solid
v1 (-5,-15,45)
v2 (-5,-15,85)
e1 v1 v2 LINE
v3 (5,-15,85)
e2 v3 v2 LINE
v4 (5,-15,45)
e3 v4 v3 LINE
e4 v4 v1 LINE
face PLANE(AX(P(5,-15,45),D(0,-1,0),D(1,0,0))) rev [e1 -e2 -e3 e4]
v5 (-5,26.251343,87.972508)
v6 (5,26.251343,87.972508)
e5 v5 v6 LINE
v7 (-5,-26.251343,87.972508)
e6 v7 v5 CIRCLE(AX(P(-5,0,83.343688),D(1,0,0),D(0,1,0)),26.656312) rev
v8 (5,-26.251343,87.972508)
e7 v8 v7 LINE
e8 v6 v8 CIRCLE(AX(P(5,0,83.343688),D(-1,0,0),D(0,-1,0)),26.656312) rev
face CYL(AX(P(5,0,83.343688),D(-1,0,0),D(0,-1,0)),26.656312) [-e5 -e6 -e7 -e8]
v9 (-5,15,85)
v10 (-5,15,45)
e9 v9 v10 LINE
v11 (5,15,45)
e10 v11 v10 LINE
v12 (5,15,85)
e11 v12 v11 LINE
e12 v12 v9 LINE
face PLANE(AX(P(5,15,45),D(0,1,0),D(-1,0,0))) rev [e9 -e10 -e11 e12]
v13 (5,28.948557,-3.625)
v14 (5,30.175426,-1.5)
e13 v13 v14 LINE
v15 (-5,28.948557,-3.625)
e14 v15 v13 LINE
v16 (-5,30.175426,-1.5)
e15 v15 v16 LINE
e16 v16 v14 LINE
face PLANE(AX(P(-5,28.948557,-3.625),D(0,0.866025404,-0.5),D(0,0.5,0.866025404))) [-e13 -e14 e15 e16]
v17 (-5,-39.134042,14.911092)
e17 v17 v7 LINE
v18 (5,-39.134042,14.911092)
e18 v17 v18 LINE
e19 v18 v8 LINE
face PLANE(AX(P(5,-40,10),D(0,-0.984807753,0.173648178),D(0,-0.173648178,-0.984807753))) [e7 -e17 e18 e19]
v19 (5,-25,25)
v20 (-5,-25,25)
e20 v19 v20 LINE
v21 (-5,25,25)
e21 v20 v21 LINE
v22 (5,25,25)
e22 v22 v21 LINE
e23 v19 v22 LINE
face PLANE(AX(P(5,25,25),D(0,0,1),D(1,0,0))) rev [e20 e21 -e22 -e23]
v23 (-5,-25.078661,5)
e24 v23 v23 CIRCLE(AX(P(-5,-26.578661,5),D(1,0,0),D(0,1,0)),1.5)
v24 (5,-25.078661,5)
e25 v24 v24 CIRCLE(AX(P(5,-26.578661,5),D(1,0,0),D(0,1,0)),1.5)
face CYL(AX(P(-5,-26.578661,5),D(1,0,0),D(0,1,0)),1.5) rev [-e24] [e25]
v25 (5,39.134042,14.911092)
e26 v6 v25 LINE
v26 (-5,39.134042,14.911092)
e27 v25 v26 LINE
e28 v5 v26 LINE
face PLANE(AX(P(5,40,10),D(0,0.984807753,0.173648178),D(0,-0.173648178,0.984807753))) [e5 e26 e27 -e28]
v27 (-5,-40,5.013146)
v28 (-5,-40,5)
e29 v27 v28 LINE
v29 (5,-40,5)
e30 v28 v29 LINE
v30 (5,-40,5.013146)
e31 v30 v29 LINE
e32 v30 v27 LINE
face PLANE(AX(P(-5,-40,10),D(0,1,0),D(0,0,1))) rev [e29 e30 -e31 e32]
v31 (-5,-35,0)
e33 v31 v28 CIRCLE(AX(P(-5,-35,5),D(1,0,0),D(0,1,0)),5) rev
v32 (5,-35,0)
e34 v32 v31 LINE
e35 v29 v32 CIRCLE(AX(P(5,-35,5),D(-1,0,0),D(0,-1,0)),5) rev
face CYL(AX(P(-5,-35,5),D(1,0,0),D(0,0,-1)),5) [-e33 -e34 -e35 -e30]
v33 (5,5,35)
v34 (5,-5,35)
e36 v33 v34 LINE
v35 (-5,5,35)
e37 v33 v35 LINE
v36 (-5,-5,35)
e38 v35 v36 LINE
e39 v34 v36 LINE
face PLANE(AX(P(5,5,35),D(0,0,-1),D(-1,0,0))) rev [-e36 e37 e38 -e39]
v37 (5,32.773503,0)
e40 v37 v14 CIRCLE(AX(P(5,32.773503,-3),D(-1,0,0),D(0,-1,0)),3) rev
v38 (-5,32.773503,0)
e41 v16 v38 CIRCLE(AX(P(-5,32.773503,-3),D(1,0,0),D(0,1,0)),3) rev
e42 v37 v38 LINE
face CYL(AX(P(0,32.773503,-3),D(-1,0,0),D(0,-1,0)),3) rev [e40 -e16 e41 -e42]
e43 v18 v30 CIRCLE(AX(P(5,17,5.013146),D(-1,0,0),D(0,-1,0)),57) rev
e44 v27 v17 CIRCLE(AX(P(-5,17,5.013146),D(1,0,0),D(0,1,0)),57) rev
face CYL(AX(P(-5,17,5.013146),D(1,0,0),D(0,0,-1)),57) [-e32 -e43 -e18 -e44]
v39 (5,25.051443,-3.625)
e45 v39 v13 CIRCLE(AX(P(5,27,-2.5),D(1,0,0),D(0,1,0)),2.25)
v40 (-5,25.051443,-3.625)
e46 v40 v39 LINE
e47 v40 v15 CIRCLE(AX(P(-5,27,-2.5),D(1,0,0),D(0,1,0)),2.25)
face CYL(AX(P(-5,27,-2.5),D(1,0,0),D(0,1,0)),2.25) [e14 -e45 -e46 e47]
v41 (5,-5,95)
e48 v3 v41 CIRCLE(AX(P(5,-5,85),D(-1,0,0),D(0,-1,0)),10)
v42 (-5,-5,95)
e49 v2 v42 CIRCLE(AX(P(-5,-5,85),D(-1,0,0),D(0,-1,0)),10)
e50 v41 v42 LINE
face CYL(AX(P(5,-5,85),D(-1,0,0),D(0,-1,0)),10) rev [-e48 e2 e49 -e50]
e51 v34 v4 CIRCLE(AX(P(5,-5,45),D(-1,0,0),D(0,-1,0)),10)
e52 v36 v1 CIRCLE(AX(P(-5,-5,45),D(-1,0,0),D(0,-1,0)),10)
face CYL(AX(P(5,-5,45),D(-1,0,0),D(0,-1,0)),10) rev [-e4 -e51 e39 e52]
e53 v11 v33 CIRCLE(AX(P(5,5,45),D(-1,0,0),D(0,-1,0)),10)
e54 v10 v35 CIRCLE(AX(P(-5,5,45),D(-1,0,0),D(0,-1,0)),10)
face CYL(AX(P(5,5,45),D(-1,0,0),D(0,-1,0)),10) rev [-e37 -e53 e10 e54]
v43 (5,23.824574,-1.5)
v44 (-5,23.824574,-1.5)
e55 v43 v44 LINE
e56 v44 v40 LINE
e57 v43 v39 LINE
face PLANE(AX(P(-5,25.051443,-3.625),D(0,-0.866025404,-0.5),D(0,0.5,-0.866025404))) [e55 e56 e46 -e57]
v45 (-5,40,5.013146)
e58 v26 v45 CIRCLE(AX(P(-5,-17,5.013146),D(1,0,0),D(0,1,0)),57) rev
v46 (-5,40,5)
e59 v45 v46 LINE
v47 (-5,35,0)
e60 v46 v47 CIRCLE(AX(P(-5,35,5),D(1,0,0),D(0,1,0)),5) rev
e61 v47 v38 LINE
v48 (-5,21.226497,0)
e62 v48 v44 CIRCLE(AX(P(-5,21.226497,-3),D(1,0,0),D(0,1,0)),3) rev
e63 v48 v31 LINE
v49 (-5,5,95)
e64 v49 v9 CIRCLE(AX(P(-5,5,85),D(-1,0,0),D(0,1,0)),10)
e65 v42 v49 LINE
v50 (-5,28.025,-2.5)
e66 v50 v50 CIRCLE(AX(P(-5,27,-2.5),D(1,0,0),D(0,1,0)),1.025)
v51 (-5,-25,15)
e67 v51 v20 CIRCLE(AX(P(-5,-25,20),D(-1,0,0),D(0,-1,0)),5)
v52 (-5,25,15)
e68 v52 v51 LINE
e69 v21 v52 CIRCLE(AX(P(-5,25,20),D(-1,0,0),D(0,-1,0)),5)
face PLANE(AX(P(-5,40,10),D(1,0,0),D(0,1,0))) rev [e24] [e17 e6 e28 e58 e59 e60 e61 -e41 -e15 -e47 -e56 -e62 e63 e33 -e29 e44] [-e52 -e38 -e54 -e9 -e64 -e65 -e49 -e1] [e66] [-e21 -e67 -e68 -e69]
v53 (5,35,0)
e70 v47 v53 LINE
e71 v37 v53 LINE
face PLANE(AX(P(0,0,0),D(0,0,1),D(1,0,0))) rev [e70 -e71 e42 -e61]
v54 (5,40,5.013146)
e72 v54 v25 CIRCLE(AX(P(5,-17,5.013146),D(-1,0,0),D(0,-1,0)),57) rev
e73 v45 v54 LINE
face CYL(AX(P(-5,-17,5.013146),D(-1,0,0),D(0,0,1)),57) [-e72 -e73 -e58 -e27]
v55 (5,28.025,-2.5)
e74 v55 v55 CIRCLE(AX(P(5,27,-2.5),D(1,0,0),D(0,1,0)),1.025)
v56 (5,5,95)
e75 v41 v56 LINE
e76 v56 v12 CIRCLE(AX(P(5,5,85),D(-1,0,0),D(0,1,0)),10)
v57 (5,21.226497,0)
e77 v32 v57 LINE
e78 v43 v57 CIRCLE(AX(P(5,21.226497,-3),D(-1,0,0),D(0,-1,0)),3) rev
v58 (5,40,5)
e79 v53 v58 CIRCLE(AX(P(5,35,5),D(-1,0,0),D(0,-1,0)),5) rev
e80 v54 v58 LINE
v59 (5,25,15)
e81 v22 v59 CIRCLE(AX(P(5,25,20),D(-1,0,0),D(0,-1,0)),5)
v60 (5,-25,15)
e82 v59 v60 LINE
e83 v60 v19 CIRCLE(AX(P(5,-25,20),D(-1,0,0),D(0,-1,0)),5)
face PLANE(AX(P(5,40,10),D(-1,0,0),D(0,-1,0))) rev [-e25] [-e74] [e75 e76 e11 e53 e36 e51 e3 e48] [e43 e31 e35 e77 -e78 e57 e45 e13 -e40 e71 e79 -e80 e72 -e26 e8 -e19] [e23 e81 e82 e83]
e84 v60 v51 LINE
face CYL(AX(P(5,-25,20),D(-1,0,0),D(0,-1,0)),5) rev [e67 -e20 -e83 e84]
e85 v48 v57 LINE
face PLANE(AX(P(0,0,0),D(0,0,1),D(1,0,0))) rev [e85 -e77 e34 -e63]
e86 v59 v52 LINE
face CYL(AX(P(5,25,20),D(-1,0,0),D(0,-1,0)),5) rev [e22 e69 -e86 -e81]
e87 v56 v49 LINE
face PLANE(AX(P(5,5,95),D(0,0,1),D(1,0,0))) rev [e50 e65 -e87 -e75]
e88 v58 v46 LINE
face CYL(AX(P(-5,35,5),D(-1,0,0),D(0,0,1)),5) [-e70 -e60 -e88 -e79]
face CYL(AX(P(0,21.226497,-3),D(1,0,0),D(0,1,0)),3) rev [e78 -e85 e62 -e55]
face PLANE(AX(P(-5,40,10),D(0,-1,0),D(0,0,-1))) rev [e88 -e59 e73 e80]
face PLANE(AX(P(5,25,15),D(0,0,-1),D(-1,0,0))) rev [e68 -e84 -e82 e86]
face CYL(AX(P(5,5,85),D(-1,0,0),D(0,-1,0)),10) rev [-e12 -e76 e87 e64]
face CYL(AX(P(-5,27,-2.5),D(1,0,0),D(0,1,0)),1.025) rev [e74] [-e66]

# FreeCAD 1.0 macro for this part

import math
import FreeCAD as App
import Part
import Sketcher
Q = App.Units.Quantity


def edges_at(feature, points):
    """Names of the edges that pass closest to the given points."""
    edges = feature.Shape.Edges
    near = lambda p: min(range(len(edges)), key=lambda i: edges[i].distToShape(Part.Vertex(*p))[0])
    return sorted({f"Edge{near(p) + 1}" for p in points})

doc = App.newDocument("Part")
body = doc.addObject("PartDesign::Body", "Body")

sketch1 = body.newObject("Sketcher::SketchObject", "Sketch")
sketch1.AttachmentSupport = (doc.getObject("XY_Plane"), [""])
sketch1.MapMode = "FlatFace"
sketch1.addGeometry(Part.LineSegment(App.Vector(-5, 40, 0), App.Vector(-5, -40, 0)), False)
sketch1.addGeometry(Part.LineSegment(App.Vector(-5, -40, 0), App.Vector(5, -40, 0)), False)
sketch1.addGeometry(Part.LineSegment(App.Vector(5, -40, 0), App.Vector(5, 40, 0)), False)
sketch1.addGeometry(Part.LineSegment(App.Vector(5, 40, 0), App.Vector(-5, 40, 0)), False)
sketch1.addConstraint(Sketcher.Constraint("Coincident", 0, 2, 1, 1))
sketch1.addConstraint(Sketcher.Constraint("Coincident", 1, 2, 2, 1))
sketch1.addConstraint(Sketcher.Constraint("Coincident", 2, 2, 3, 1))
sketch1.addConstraint(Sketcher.Constraint("Coincident", 3, 2, 0, 1))
sketch1.addConstraint(Sketcher.Constraint("Vertical", 0))
sketch1.addConstraint(Sketcher.Constraint("Horizontal", 1))
sketch1.addConstraint(Sketcher.Constraint("Vertical", 2))
sketch1.addConstraint(Sketcher.Constraint("Horizontal", 3))
sketch1.addConstraint(Sketcher.Constraint("Symmetric", 0, 2, 2, 2, -1, 1))
sketch1.addConstraint(Sketcher.Constraint("DistanceX", 1, 1, 1, 2, 10.0))
sketch1.addConstraint(Sketcher.Constraint("DistanceY", 0, 2, 0, 1, 80.0))
pad1 = body.newObject("PartDesign::Pad", "Pad")
pad1.Profile = sketch1
pad1.Length = 10

sketch2 = body.newObject("Sketcher::SketchObject", "Sketch001")
sketch2.AttachmentSupport = (doc.getObject("YZ_Plane"), [""])
sketch2.MapMode = "FlatFace"
sketch2.AttachmentOffset = App.Placement(App.Vector(0, 0, -5), App.Rotation())
sketch2.addGeometry(Part.LineSegment(App.Vector(22, 110, 0), App.Vector(40, 10, 0)), False)
sketch2.addGeometry(Part.LineSegment(App.Vector(40, 10, 0), App.Vector(-40, 10, 0)), False)
sketch2.addGeometry(Part.LineSegment(App.Vector(-40, 10, 0), App.Vector(-22, 110, 0)), False)
sketch2.addGeometry(Part.LineSegment(App.Vector(-22, 110, 0), App.Vector(22, 110, 0)), False)
sketch2.addGeometry(Part.LineSegment(App.Vector(15, 45, 0), App.Vector(15, 85, 0)), False)
sketch2.addGeometry(Part.ArcOfCircle(Part.Circle(App.Vector(5, 85, 0), App.Vector(0, 0, 1), 10), math.radians(0), math.radians(90)), False)
sketch2.addGeometry(Part.LineSegment(App.Vector(5, 95, 0), App.Vector(-5, 95, 0)), False)
sketch2.addGeometry(Part.ArcOfCircle(Part.Circle(App.Vector(-5, 85, 0), App.Vector(0, 0, 1), 10), math.radians(90), math.radians(180)), False)
sketch2.addGeometry(Part.LineSegment(App.Vector(-15, 85, 0), App.Vector(-15, 45, 0)), False)
sketch2.addGeometry(Part.ArcOfCircle(Part.Circle(App.Vector(-5, 45, 0), App.Vector(0, 0, 1), 10), math.radians(180), math.radians(270)), False)
sketch2.addGeometry(Part.LineSegment(App.Vector(-5, 35, 0), App.Vector(5, 35, 0)), False)
sketch2.addGeometry(Part.ArcOfCircle(Part.Circle(App.Vector(5, 45, 0), App.Vector(0, 0, 1), 10), math.radians(-90), math.radians(0)), False)
sketch2.addGeometry(Part.LineSegment(App.Vector(25, 25, 0), App.Vector(-25, 25, 0)), False)
sketch2.addGeometry(Part.ArcOfCircle(Part.Circle(App.Vector(-25, 20, 0), App.Vector(0, 0, 1), 5), math.radians(90), math.radians(270)), False)
sketch2.addGeometry(Part.LineSegment(App.Vector(-25, 15, 0), App.Vector(25, 15, 0)), False)
sketch2.addGeometry(Part.ArcOfCircle(Part.Circle(App.Vector(25, 20, 0), App.Vector(0, 0, 1), 5), math.radians(-90), math.radians(90)), False)
sketch2.addConstraint(Sketcher.Constraint("Coincident", 0, 2, 1, 1))
sketch2.addConstraint(Sketcher.Constraint("Coincident", 1, 2, 2, 1))
sketch2.addConstraint(Sketcher.Constraint("Coincident", 2, 2, 3, 1))
sketch2.addConstraint(Sketcher.Constraint("Coincident", 3, 2, 0, 1))
sketch2.addConstraint(Sketcher.Constraint("Tangent", 4, 2, 5, 1))
sketch2.addConstraint(Sketcher.Constraint("Tangent", 5, 2, 6, 1))
sketch2.addConstraint(Sketcher.Constraint("Tangent", 6, 2, 7, 1))
sketch2.addConstraint(Sketcher.Constraint("Tangent", 7, 2, 8, 1))
sketch2.addConstraint(Sketcher.Constraint("Tangent", 8, 2, 9, 1))
sketch2.addConstraint(Sketcher.Constraint("Tangent", 9, 2, 10, 1))
sketch2.addConstraint(Sketcher.Constraint("Tangent", 10, 2, 11, 1))
sketch2.addConstraint(Sketcher.Constraint("Tangent", 11, 2, 4, 1))
sketch2.addConstraint(Sketcher.Constraint("Tangent", 12, 2, 13, 1))
sketch2.addConstraint(Sketcher.Constraint("Tangent", 13, 2, 14, 1))
sketch2.addConstraint(Sketcher.Constraint("Tangent", 14, 2, 15, 1))
sketch2.addConstraint(Sketcher.Constraint("Tangent", 15, 2, 12, 1))
sketch2.addConstraint(Sketcher.Constraint("Horizontal", 1))
sketch2.addConstraint(Sketcher.Constraint("Horizontal", 3))
sketch2.addConstraint(Sketcher.Constraint("Vertical", 4))
sketch2.addConstraint(Sketcher.Constraint("Horizontal", 6))
sketch2.addConstraint(Sketcher.Constraint("Vertical", 8))
sketch2.addConstraint(Sketcher.Constraint("Horizontal", 10))
sketch2.addConstraint(Sketcher.Constraint("Horizontal", 12))
sketch2.addConstraint(Sketcher.Constraint("Horizontal", 14))
sketch2.addConstraint(Sketcher.Constraint("Equal", 5, 7))
sketch2.addConstraint(Sketcher.Constraint("Equal", 7, 9))
sketch2.addConstraint(Sketcher.Constraint("Equal", 9, 11))
sketch2.addConstraint(Sketcher.Constraint("Equal", 0, 2))
sketch2.addConstraint(Sketcher.Constraint("Radius", 5, 10.0))
sketch2.addConstraint(Sketcher.Constraint("Radius", 13, 5.0))
sketch2.addConstraint(Sketcher.Constraint("DistanceX", 1, 2, 1, 1, 80.0))
sketch2.addConstraint(Sketcher.Constraint("DistanceX", 6, 2, 6, 1, 10.0))
sketch2.addConstraint(Sketcher.Constraint("DistanceX", 12, 2, 12, 1, 50.0))
sketch2.addConstraint(Sketcher.Constraint("DistanceY", 4, 1, 4, 2, 40.0))
sketch2.addConstraint(Sketcher.Constraint("Angle", 0, Q("-80 deg")))
sketch2.addConstraint(Sketcher.Constraint("DistanceX", -1, 1, 5, 3, 5.0))
sketch2.addConstraint(Sketcher.Constraint("DistanceY", -1, 1, 5, 3, 85.0))
sketch2.addConstraint(Sketcher.Constraint("DistanceX", 13, 3, -1, 1, 25.0))
sketch2.addConstraint(Sketcher.Constraint("DistanceY", -1, 1, 13, 3, 20.0))
sketch2.addConstraint(Sketcher.Constraint("DistanceX", -1, 1, 0, 2, 40.0))
sketch2.addConstraint(Sketcher.Constraint("DistanceY", -1, 1, 0, 2, 10.0))
sketch2.addConstraint(Sketcher.Constraint("DistanceY", -1, 1, 2, 2, 110.0))
pad2 = body.newObject("PartDesign::Pad", "Pad001")
pad2.Profile = sketch2
pad2.Length = 10
doc.recompute()

fillet = body.newObject("PartDesign::Fillet", "Fillet")
fillet.Base = (pad2, edges_at(pad2, [(0, 22.367, 110), (0, -22.367, 110)]))
fillet.Radius = 26.656312

sketch3 = body.newObject("Sketcher::SketchObject", "Sketch002")
sketch3.AttachmentSupport = (doc.getObject("YZ_Plane"), [""])
sketch3.MapMode = "FlatFace"
sketch3.AttachmentOffset = App.Placement(App.Vector(0, 0, 5), App.Rotation())
sketch3.addGeometry(Part.Circle(App.Vector(-26.6, 5, 0), App.Vector(0, 0, 1), 1.5), False)
sketch3.addConstraint(Sketcher.Constraint("Diameter", 0, 3.0))
sketch3.addConstraint(Sketcher.Constraint("DistanceY", -1, 1, 0, 3, 5.0))
sketch3.addConstraint(Sketcher.Constraint("DistanceX", 0, 3, -1, 1, 26.578661))
pocket1 = body.newObject("PartDesign::Pocket", "Pocket")
pocket1.Profile = sketch3
pocket1.Type = "ThroughAll"

sketch4 = body.newObject("Sketcher::SketchObject", "Sketch003")
sketch4.AttachmentSupport = (doc.getObject("YZ_Plane"), [""])
sketch4.MapMode = "FlatFace"
sketch4.AttachmentOffset = App.Placement(App.Vector(0, 0, 5), App.Rotation())
sketch4.addGeometry(Part.LineSegment(App.Vector(28.9, -3.6, 0), App.Vector(31, 0, 0)), False)
sketch4.addGeometry(Part.LineSegment(App.Vector(31, 0, 0), App.Vector(23, 0, 0)), False)
sketch4.addGeometry(Part.LineSegment(App.Vector(23, 0, 0), App.Vector(25.1, -3.6, 0)), False)
sketch4.addGeometry(Part.ArcOfCircle(Part.Circle(App.Vector(27, -2.5, 0), App.Vector(0, 0, 1), 2.3), math.radians(-150), math.radians(-30)), False)
sketch4.addGeometry(Part.Circle(App.Vector(27, -2.5, 0), App.Vector(0, 0, 1), 1), False)
sketch4.addConstraint(Sketcher.Constraint("Coincident", 0, 2, 1, 1))
sketch4.addConstraint(Sketcher.Constraint("Coincident", 1, 2, 2, 1))
sketch4.addConstraint(Sketcher.Constraint("Tangent", 2, 2, 3, 1))
sketch4.addConstraint(Sketcher.Constraint("Tangent", 3, 2, 0, 1))
sketch4.addConstraint(Sketcher.Constraint("Horizontal", 1))
sketch4.addConstraint(Sketcher.Constraint("Coincident", 4, 3, 3, 3))
sketch4.addConstraint(Sketcher.Constraint("PointOnObject", 0, 2, -1))
sketch4.addConstraint(Sketcher.Constraint("Horizontal", 2, 2, 3, 2))
sketch4.addConstraint(Sketcher.Constraint("Diameter", 4, 2.05))
sketch4.addConstraint(Sketcher.Constraint("Angle", 0, Q("60 deg")))
sketch4.addConstraint(Sketcher.Constraint("Radius", 3, 2.25))
sketch4.addConstraint(Sketcher.Constraint("DistanceX", -1, 1, 3, 3, 27.0))
sketch4.addConstraint(Sketcher.Constraint("DistanceY", 3, 3, -1, 1, 2.5))
pad3 = body.newObject("PartDesign::Pad", "Pad002")
pad3.Profile = sketch4
pad3.Length = 10
pad3.Reversed = True
doc.recompute()

fillet2 = body.newObject("PartDesign::Fillet", "Fillet001")
fillet2.Base = (pad3, edges_at(pad3, [(0, 22.959, 0)]))
fillet2.Radius = 3
doc.recompute()

fillet3 = body.newObject("PartDesign::Fillet", "Fillet002")
fillet3.Base = (fillet2, edges_at(fillet2, [(0, 31.041, 0)]))
fillet3.Radius = 3
doc.recompute()

fillet4 = body.newObject("PartDesign::Fillet", "Fillet003")
fillet4.Base = (fillet3, edges_at(fillet3, [(0, -40, 0), (0, 40, 0)]))
fillet4.Radius = 5
doc.recompute()

fillet5 = body.newObject("PartDesign::Fillet", "Fillet004")
fillet5.Base = (fillet4, edges_at(fillet4, [(0, 40, 10)]))
fillet5.Radius = 57
doc.recompute()

fillet6 = body.newObject("PartDesign::Fillet", "Fillet005")
fillet6.Base = (fillet5, edges_at(fillet5, [(0, -40, 10)]))
fillet6.Radius = 57

doc.recompute()
